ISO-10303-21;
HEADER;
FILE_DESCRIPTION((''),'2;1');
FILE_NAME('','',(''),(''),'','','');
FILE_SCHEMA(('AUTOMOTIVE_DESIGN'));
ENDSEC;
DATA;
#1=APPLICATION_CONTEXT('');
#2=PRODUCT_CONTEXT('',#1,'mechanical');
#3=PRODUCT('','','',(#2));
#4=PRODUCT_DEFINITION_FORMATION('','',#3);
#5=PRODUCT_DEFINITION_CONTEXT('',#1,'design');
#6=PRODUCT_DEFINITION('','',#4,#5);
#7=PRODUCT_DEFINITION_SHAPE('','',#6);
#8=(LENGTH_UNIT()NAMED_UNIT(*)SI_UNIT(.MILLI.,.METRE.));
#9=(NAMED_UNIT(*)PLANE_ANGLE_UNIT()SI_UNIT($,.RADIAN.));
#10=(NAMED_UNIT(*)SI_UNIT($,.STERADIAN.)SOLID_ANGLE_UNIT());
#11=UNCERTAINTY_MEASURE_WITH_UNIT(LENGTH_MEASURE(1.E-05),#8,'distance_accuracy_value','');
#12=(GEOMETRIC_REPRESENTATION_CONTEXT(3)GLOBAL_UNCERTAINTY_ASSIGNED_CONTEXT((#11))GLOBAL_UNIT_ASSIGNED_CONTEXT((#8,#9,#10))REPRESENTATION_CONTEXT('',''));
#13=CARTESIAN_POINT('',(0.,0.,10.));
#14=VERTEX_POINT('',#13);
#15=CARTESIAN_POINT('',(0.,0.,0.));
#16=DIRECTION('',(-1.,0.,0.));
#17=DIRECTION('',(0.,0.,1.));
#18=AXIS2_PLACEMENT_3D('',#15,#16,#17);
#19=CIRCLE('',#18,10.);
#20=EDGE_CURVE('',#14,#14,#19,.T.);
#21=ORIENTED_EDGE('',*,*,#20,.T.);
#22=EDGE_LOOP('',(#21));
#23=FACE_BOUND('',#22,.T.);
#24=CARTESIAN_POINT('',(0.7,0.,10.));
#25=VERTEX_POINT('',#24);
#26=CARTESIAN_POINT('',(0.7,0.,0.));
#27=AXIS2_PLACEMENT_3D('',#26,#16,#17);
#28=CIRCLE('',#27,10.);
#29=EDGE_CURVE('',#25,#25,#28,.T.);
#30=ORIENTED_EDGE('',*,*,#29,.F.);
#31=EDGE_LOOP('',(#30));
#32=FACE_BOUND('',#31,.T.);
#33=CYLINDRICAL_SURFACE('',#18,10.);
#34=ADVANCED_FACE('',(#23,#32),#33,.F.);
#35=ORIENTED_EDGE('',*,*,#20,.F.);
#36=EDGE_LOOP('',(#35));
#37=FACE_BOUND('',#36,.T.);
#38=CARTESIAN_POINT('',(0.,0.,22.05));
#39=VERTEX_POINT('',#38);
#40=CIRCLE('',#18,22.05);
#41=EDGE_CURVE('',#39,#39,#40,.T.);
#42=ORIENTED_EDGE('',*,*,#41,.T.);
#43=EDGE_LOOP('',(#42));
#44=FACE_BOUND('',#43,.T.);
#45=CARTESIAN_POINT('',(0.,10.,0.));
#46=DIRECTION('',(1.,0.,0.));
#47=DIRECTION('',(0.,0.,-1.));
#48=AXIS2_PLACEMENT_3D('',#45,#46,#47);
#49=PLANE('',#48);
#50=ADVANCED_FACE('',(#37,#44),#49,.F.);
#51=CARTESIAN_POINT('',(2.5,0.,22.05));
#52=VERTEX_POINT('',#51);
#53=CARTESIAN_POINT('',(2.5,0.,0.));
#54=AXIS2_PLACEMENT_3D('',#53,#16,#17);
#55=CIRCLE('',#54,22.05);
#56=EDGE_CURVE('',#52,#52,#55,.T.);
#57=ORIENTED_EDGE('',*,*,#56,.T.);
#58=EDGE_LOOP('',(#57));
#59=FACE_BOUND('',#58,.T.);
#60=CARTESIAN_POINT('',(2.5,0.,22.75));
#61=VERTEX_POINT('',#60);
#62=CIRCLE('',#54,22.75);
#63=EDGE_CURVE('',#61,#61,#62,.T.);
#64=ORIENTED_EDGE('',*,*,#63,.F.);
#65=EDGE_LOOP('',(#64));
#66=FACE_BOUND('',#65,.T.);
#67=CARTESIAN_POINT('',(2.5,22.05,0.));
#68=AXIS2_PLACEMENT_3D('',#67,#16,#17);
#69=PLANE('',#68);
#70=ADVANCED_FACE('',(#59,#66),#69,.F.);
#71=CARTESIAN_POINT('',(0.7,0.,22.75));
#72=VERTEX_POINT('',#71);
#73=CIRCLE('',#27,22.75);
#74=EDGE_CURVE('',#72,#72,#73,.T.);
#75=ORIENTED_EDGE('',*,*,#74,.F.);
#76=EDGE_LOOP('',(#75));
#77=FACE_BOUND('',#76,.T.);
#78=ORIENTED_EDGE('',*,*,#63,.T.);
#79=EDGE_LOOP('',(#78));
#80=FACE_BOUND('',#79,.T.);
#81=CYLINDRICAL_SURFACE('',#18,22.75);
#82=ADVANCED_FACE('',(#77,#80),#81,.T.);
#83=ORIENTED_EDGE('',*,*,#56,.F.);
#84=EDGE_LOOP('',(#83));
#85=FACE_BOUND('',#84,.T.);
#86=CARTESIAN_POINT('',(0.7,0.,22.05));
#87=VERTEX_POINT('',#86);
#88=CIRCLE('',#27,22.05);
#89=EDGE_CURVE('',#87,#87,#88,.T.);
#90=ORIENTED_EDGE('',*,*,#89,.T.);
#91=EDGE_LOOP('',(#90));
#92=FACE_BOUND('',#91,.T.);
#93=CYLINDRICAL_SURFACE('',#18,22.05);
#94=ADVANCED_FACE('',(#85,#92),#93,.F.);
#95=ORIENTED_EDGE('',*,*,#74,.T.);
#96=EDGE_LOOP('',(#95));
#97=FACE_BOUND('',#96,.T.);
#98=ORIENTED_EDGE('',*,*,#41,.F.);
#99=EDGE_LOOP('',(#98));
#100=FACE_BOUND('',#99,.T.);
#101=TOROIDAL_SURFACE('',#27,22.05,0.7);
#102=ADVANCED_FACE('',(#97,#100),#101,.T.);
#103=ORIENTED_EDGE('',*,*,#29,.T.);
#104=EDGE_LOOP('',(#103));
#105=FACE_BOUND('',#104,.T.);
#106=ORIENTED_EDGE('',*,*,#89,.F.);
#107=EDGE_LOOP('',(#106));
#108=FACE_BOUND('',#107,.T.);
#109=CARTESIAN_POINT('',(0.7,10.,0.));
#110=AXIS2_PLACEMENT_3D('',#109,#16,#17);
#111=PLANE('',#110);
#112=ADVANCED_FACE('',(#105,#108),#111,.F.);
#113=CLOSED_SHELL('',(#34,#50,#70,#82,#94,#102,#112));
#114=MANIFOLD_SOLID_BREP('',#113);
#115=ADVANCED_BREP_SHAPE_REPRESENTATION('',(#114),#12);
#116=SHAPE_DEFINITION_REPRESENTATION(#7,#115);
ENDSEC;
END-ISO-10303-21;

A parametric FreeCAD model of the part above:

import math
import FreeCAD as App
import Part
import Sketcher
from FreeCAD import Vector

doc = App.newDocument("Part")
body = doc.addObject("PartDesign::Body", "Body")

# Sketch on XY plane
sketch1 = body.newObject("Sketcher::SketchObject", "Sketch")
sketch1.AttachmentSupport = (doc.getObject("XY_Plane"), [""])
sketch1.MapMode = "FlatFace"
sketch1.addGeometry(Part.LineSegment(Vector(0.7, 10, 0), Vector(0.7, 22.1, 0)), False)
sketch1.addGeometry(Part.LineSegment(Vector(0.7, 22.1, 0), Vector(2.5, 22.1, 0)), False)
sketch1.addGeometry(Part.LineSegment(Vector(2.5, 22.1, 0), Vector(2.5, 22.8, 0)), False)
sketch1.addGeometry(Part.LineSegment(Vector(2.5, 22.8, 0), Vector(0.7, 22.8, 0)), False)
sketch1.addGeometry(Part.ArcOfCircle(Part.Circle(Vector(0.7, 22.1, 0), Vector(0, 0, 1), 0.7), math.radians(90), math.radians(180)), False)
sketch1.addGeometry(Part.LineSegment(Vector(0, 22.1, 0), Vector(0, 10, 0)), False)
sketch1.addGeometry(Part.LineSegment(Vector(0, 10, 0), Vector(0.7, 10, 0)), False)
sketch1.addConstraint(Sketcher.Constraint("Coincident", 0, 2, 1, 1))
sketch1.addConstraint(Sketcher.Constraint("Coincident", 1, 2, 2, 1))
sketch1.addConstraint(Sketcher.Constraint("Coincident", 2, 2, 3, 1))
sketch1.addConstraint(Sketcher.Constraint("Tangent", 3, 2, 4, 1))
sketch1.addConstraint(Sketcher.Constraint("Tangent", 4, 2, 5, 1))
sketch1.addConstraint(Sketcher.Constraint("Coincident", 5, 2, 6, 1))
sketch1.addConstraint(Sketcher.Constraint("Coincident", 6, 2, 0, 1))
sketch1.addConstraint(Sketcher.Constraint("Vertical", 0))
sketch1.addConstraint(Sketcher.Constraint("Horizontal", 1))
sketch1.addConstraint(Sketcher.Constraint("Vertical", 2))
sketch1.addConstraint(Sketcher.Constraint("Horizontal", 3))
sketch1.addConstraint(Sketcher.Constraint("Vertical", 5))
sketch1.addConstraint(Sketcher.Constraint("Horizontal", 6))
sketch1.addConstraint(Sketcher.Constraint("Coincident", 0, 2, 4, 3))
sketch1.addConstraint(Sketcher.Constraint("PointOnObject", 4, 2, -2))
sketch1.addConstraint(Sketcher.Constraint("Radius", 4, 0.7))
sketch1.addConstraint(Sketcher.Constraint("DistanceX", 1, 1, 1, 2, 1.8))
sketch1.addConstraint(Sketcher.Constraint("DistanceY", -1, 1, 5, 2, 10.0))
sketch1.addConstraint(Sketcher.Constraint("DistanceY", 0, 1, 0, 2, 12.05))
revolution = body.newObject("PartDesign::Revolution", "Revolution")
revolution.Profile = sketch1
revolution.ReferenceAxis = (sketch1, ["H_Axis"])
revolution.Angle = 360

doc.recompute()
